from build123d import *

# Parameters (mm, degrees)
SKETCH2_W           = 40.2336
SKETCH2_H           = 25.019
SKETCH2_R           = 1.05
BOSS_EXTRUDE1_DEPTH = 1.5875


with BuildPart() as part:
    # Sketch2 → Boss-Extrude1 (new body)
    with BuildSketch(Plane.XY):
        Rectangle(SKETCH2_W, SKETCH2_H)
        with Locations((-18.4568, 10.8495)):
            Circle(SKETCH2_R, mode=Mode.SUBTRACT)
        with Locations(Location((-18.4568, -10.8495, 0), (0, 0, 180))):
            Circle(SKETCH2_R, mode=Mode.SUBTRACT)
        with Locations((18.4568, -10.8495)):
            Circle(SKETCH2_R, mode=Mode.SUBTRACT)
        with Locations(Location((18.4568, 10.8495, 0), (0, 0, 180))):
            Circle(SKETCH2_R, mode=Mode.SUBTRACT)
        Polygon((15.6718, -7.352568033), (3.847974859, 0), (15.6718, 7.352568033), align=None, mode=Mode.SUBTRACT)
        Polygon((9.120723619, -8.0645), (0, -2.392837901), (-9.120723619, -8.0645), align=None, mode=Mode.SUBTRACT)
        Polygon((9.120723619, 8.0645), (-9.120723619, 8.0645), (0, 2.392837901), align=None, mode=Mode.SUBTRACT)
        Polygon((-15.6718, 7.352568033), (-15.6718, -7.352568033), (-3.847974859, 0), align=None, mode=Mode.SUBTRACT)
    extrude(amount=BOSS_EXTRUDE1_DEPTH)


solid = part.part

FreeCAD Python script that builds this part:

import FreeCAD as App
import Part
import Sketcher
from FreeCAD import Vector
Q = App.Units.Quantity


def add_polygon(sketch, points):
    """Adds a closed chain of lines whose ends are joined by coincident constraints."""
    first, n = sketch.GeometryCount, len(points)
    for a, b in zip(points, points[1:] + points[:1]):
        sketch.addGeometry(Part.LineSegment(App.Vector(*a, 0), App.Vector(*b, 0)), False)
    for i in range(n):
        sketch.addConstraint(Sketcher.Constraint("Coincident", first + i, 2, first + (i + 1) % n, 1))

doc = App.newDocument("Part")
body = doc.addObject("PartDesign::Body", "Body")

sketch1 = body.newObject("Sketcher::SketchObject", "Sketch")
sketch1.AttachmentSupport = (doc.getObject("XY_Plane"), [""])
sketch1.MapMode = "FlatFace"
add_polygon(sketch1, [(-20.1, 12.5), (-20.1, -12.5), (20.1, -12.5), (20.1, 12.5)])
sketch1.addGeometry(Part.Circle(Vector(-18.5, -10.8, 0), Vector(0, 0, 1), 1.1), False)
add_polygon(sketch1, [(-15.7, -7.4), (-15.7, 7.4), (-3.8, 0)])
sketch1.addGeometry(Part.Circle(Vector(18.5, -10.8, 0), Vector(0, 0, 1), 1.1), False)
add_polygon(sketch1, [(0, -2.4), (9.1, -8.1), (-9.1, -8.1)])
add_polygon(sketch1, [(15.7, 7.4), (15.7, -7.4), (3.8, 0)])
sketch1.addGeometry(Part.Circle(Vector(-18.5, 10.8, 0), Vector(0, 0, 1), 1.1), False)
add_polygon(sketch1, [(-9.1, 8.1), (9.1, 8.1), (0, 2.4)])
sketch1.addGeometry(Part.Circle(Vector(18.5, 10.8, 0), Vector(0, 0, 1), 1.1), False)
sketch1.addConstraint([
    Sketcher.Constraint("Vertical", 0),
    Sketcher.Constraint("Horizontal", 1),
    Sketcher.Constraint("Vertical", 2),
    Sketcher.Constraint("Horizontal", 3),
    Sketcher.Constraint("Vertical", 5),
    Sketcher.Constraint("Horizontal", 10),
    Sketcher.Constraint("Vertical", 12),
    Sketcher.Constraint("Horizontal", 16),
    Sketcher.Constraint("Equal", 4, 8),
    Sketcher.Constraint("Equal", 8, 15),
    Sketcher.Constraint("Equal", 15, 19),
    Sketcher.Constraint("Symmetric", 8, 3, 15, 3, -1, 1),
    Sketcher.Constraint("Symmetric", 4, 3, 19, 3, -1, 1),
    Sketcher.Constraint("Symmetric", 0, 2, 2, 2, -1, 1),
    Sketcher.Constraint("Symmetric", 5, 2, 12, 2, -1, 1),
    Sketcher.Constraint("Symmetric", 6, 2, 13, 2, -1, 1),
    Sketcher.Constraint("Symmetric", 10, 2, 16, 2, -1, 1),
    Sketcher.Constraint("Symmetric", 11, 2, 17, 2, -1, 1),
    Sketcher.Constraint("Symmetric", 4, 3, 8, 3, -2),
    Sketcher.Constraint("PointOnObject", 6, 2, -1),
    Sketcher.Constraint("PointOnObject", 11, 2, -2),
    Sketcher.Constraint("Parallel", 6, 9),
    Sketcher.Constraint("Parallel", 7, 11),
    Sketcher.Constraint("Parallel", 11, 14),
    Sketcher.Constraint("Parallel", 13, 18),
    Sketcher.Constraint("Horizontal", 7, 2, 12, 2),
    Sketcher.Constraint("Diameter", 4, 2.1),
    Sketcher.Constraint("DistanceX", 1, 1, 1, 2, Q("1.584 in")),
    Sketcher.Constraint("DistanceY", 0, 2, 0, 1, Q("0.985 in")),
    Sketcher.Constraint("DistanceY", 9, 2, 2, 2, Q("0.81 in")),
    Sketcher.Constraint("DistanceX", 5, 2, -1, 1, Q("0.617 in")),
    Sketcher.Constraint("DistanceX", 4, 3, -1, 1, 18.4568),
    Sketcher.Constraint("DistanceY", 4, 3, -1, 1, 10.8495),
    Sketcher.Constraint("DistanceX", 6, 2, 9, 2, 12.968698),
    Sketcher.Constraint("Distance", 9, 10.740361),
    Sketcher.Constraint("DistanceX", 10, 2, 10, 1, 18.241447),
])
pad1 = body.newObject("PartDesign::Pad", "Pad")
pad1.Profile = sketch1
pad1.Length = Q("0.0625 in")

doc.recompute()
